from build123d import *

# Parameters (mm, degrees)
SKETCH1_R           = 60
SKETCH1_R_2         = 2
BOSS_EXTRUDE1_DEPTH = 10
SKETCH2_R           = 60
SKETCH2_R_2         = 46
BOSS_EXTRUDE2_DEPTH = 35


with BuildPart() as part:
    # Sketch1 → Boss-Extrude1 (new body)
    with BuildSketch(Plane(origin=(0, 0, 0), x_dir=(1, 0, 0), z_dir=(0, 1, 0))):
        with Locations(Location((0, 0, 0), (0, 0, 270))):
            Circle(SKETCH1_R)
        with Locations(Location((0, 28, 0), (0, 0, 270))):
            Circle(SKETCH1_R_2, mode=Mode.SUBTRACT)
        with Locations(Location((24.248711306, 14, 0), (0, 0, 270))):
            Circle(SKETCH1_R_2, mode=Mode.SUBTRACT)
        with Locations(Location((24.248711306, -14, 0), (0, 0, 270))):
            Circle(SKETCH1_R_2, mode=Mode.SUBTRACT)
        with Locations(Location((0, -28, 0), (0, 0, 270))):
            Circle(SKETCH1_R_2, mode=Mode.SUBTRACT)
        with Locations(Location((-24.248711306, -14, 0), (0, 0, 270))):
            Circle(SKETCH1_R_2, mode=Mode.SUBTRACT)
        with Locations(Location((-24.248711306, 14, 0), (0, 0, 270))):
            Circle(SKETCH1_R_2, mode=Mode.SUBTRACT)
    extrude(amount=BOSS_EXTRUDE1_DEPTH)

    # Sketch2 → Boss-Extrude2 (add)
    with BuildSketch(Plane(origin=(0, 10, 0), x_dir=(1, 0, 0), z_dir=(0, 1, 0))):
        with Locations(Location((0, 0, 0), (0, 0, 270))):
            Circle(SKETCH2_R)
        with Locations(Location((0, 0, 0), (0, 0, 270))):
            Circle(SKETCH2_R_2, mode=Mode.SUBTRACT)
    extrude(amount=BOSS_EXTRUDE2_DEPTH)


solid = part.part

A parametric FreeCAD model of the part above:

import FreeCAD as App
import Part
import Sketcher

V = App.Vector
Q = App.Units.Quantity

doc = App.newDocument("Part")
params = doc.addObject("Spreadsheet::Sheet", "Params")
for row, (alias, value) in enumerate([
    ("sketch1_diameter", "120 mm"),
    ("sketch1_diameter2", "4 mm"),
    ("pad1_length", "10 mm"),
    ("sketch2_diameter", "120 mm"),
    ("sketch2_diameter2", "92 mm"),
    ("pad2_length", "35 mm"),
], start=1):
    params.set(f"A{row}", alias)
    params.set(f"B{row}", "=" + value)
    params.setAlias(f"B{row}", alias)

body = doc.addObject("PartDesign::Body", "Body")

sketch1 = body.newObject("Sketcher::SketchObject", "Sketch")
sketch1.AttachmentSupport = (doc.getObject("XZ_Plane"), [""])
sketch1.MapMode = "FlatFace"
sketch1.addGeometry(Part.Circle(V(0, 0, 0), V(0, 0, 1), 60), False)
sketch1.addGeometry(Part.Circle(V(-24.2, -14, 0), V(0, 0, 1), 2), False)
sketch1.addGeometry(Part.Circle(V(0, -28, 0), V(0, 0, 1), 2), False)
sketch1.addGeometry(Part.Circle(V(-24.2, 14, 0), V(0, 0, 1), 2), False)
sketch1.addGeometry(Part.Circle(V(24.2, -14, 0), V(0, 0, 1), 2), False)
sketch1.addGeometry(Part.Circle(V(0, 28, 0), V(0, 0, 1), 2), False)
sketch1.addGeometry(Part.Circle(V(24.2, 14, 0), V(0, 0, 1), 2), False)
sketch1.addConstraint(Sketcher.Constraint("Coincident", 0, 3, -1, 1))
sketch1.addConstraint(Sketcher.Constraint("Equal", 1, 2))
sketch1.addConstraint(Sketcher.Constraint("Equal", 2, 3))
sketch1.addConstraint(Sketcher.Constraint("Equal", 3, 4))
sketch1.addConstraint(Sketcher.Constraint("Equal", 4, 5))
sketch1.addConstraint(Sketcher.Constraint("Equal", 5, 6))
sketch1.addConstraint(Sketcher.Constraint("Symmetric", 3, 3, 4, 3, -1, 1))
sketch1.addConstraint(Sketcher.Constraint("Symmetric", 2, 3, 5, 3, -1, 1))
sketch1.addConstraint(Sketcher.Constraint("Symmetric", 1, 3, 6, 3, -1, 1))
sketch1.addConstraint(Sketcher.Constraint("Symmetric", 1, 3, 4, 3, -2))
sketch1.addConstraint(Sketcher.Constraint("PointOnObject", 2, 3, -2))
sketch1.addConstraint(Sketcher.Constraint("Diameter", 0, Q("120 mm")))
sketch1.addConstraint(Sketcher.Constraint("Diameter", 1, Q("4 mm")))
sketch1.addConstraint(Sketcher.Constraint("DistanceY", 1, 3, -1, 1, Q("14 mm")))
sketch1.addConstraint(Sketcher.Constraint("DistanceY", 2, 3, -1, 1, Q("28 mm")))
sketch1.addConstraint(Sketcher.Constraint("DistanceX", 1, 3, -1, 1, Q("24.248711 mm")))
sketch1.setExpression("Constraints[11]", "Params.sketch1_diameter")
sketch1.setExpression("Constraints[12]", "Params.sketch1_diameter2")
pad1 = body.newObject("PartDesign::Pad", "Pad")
pad1.Profile = sketch1
pad1.setExpression("Length", "Params.pad1_length")
pad1.Reversed = True

sketch2 = body.newObject("Sketcher::SketchObject", "Sketch001")
sketch2.AttachmentSupport = (doc.getObject("XZ_Plane"), [""])
sketch2.MapMode = "FlatFace"
sketch2.AttachmentOffset = App.Placement(V(0, 0, -10), App.Rotation())
sketch2.addGeometry(Part.Circle(V(0, 0, 0), V(0, 0, 1), 60), False)
sketch2.addGeometry(Part.Circle(V(0, 0, 0), V(0, 0, 1), 46), False)
sketch2.addConstraint(Sketcher.Constraint("Coincident", 0, 3, -1, 1))
sketch2.addConstraint(Sketcher.Constraint("Coincident", 1, 3, -1, 1))
sketch2.addConstraint(Sketcher.Constraint("Diameter", 0, Q("120 mm")))
sketch2.addConstraint(Sketcher.Constraint("Diameter", 1, Q("92 mm")))
sketch2.setExpression("Constraints[2]", "Params.sketch2_diameter")
sketch2.setExpression("Constraints[3]", "Params.sketch2_diameter2")
pad2 = body.newObject("PartDesign::Pad", "Pad001")
pad2.Profile = sketch2
pad2.setExpression("Length", "Params.pad2_length")
pad2.Reversed = True

doc.recompute()
